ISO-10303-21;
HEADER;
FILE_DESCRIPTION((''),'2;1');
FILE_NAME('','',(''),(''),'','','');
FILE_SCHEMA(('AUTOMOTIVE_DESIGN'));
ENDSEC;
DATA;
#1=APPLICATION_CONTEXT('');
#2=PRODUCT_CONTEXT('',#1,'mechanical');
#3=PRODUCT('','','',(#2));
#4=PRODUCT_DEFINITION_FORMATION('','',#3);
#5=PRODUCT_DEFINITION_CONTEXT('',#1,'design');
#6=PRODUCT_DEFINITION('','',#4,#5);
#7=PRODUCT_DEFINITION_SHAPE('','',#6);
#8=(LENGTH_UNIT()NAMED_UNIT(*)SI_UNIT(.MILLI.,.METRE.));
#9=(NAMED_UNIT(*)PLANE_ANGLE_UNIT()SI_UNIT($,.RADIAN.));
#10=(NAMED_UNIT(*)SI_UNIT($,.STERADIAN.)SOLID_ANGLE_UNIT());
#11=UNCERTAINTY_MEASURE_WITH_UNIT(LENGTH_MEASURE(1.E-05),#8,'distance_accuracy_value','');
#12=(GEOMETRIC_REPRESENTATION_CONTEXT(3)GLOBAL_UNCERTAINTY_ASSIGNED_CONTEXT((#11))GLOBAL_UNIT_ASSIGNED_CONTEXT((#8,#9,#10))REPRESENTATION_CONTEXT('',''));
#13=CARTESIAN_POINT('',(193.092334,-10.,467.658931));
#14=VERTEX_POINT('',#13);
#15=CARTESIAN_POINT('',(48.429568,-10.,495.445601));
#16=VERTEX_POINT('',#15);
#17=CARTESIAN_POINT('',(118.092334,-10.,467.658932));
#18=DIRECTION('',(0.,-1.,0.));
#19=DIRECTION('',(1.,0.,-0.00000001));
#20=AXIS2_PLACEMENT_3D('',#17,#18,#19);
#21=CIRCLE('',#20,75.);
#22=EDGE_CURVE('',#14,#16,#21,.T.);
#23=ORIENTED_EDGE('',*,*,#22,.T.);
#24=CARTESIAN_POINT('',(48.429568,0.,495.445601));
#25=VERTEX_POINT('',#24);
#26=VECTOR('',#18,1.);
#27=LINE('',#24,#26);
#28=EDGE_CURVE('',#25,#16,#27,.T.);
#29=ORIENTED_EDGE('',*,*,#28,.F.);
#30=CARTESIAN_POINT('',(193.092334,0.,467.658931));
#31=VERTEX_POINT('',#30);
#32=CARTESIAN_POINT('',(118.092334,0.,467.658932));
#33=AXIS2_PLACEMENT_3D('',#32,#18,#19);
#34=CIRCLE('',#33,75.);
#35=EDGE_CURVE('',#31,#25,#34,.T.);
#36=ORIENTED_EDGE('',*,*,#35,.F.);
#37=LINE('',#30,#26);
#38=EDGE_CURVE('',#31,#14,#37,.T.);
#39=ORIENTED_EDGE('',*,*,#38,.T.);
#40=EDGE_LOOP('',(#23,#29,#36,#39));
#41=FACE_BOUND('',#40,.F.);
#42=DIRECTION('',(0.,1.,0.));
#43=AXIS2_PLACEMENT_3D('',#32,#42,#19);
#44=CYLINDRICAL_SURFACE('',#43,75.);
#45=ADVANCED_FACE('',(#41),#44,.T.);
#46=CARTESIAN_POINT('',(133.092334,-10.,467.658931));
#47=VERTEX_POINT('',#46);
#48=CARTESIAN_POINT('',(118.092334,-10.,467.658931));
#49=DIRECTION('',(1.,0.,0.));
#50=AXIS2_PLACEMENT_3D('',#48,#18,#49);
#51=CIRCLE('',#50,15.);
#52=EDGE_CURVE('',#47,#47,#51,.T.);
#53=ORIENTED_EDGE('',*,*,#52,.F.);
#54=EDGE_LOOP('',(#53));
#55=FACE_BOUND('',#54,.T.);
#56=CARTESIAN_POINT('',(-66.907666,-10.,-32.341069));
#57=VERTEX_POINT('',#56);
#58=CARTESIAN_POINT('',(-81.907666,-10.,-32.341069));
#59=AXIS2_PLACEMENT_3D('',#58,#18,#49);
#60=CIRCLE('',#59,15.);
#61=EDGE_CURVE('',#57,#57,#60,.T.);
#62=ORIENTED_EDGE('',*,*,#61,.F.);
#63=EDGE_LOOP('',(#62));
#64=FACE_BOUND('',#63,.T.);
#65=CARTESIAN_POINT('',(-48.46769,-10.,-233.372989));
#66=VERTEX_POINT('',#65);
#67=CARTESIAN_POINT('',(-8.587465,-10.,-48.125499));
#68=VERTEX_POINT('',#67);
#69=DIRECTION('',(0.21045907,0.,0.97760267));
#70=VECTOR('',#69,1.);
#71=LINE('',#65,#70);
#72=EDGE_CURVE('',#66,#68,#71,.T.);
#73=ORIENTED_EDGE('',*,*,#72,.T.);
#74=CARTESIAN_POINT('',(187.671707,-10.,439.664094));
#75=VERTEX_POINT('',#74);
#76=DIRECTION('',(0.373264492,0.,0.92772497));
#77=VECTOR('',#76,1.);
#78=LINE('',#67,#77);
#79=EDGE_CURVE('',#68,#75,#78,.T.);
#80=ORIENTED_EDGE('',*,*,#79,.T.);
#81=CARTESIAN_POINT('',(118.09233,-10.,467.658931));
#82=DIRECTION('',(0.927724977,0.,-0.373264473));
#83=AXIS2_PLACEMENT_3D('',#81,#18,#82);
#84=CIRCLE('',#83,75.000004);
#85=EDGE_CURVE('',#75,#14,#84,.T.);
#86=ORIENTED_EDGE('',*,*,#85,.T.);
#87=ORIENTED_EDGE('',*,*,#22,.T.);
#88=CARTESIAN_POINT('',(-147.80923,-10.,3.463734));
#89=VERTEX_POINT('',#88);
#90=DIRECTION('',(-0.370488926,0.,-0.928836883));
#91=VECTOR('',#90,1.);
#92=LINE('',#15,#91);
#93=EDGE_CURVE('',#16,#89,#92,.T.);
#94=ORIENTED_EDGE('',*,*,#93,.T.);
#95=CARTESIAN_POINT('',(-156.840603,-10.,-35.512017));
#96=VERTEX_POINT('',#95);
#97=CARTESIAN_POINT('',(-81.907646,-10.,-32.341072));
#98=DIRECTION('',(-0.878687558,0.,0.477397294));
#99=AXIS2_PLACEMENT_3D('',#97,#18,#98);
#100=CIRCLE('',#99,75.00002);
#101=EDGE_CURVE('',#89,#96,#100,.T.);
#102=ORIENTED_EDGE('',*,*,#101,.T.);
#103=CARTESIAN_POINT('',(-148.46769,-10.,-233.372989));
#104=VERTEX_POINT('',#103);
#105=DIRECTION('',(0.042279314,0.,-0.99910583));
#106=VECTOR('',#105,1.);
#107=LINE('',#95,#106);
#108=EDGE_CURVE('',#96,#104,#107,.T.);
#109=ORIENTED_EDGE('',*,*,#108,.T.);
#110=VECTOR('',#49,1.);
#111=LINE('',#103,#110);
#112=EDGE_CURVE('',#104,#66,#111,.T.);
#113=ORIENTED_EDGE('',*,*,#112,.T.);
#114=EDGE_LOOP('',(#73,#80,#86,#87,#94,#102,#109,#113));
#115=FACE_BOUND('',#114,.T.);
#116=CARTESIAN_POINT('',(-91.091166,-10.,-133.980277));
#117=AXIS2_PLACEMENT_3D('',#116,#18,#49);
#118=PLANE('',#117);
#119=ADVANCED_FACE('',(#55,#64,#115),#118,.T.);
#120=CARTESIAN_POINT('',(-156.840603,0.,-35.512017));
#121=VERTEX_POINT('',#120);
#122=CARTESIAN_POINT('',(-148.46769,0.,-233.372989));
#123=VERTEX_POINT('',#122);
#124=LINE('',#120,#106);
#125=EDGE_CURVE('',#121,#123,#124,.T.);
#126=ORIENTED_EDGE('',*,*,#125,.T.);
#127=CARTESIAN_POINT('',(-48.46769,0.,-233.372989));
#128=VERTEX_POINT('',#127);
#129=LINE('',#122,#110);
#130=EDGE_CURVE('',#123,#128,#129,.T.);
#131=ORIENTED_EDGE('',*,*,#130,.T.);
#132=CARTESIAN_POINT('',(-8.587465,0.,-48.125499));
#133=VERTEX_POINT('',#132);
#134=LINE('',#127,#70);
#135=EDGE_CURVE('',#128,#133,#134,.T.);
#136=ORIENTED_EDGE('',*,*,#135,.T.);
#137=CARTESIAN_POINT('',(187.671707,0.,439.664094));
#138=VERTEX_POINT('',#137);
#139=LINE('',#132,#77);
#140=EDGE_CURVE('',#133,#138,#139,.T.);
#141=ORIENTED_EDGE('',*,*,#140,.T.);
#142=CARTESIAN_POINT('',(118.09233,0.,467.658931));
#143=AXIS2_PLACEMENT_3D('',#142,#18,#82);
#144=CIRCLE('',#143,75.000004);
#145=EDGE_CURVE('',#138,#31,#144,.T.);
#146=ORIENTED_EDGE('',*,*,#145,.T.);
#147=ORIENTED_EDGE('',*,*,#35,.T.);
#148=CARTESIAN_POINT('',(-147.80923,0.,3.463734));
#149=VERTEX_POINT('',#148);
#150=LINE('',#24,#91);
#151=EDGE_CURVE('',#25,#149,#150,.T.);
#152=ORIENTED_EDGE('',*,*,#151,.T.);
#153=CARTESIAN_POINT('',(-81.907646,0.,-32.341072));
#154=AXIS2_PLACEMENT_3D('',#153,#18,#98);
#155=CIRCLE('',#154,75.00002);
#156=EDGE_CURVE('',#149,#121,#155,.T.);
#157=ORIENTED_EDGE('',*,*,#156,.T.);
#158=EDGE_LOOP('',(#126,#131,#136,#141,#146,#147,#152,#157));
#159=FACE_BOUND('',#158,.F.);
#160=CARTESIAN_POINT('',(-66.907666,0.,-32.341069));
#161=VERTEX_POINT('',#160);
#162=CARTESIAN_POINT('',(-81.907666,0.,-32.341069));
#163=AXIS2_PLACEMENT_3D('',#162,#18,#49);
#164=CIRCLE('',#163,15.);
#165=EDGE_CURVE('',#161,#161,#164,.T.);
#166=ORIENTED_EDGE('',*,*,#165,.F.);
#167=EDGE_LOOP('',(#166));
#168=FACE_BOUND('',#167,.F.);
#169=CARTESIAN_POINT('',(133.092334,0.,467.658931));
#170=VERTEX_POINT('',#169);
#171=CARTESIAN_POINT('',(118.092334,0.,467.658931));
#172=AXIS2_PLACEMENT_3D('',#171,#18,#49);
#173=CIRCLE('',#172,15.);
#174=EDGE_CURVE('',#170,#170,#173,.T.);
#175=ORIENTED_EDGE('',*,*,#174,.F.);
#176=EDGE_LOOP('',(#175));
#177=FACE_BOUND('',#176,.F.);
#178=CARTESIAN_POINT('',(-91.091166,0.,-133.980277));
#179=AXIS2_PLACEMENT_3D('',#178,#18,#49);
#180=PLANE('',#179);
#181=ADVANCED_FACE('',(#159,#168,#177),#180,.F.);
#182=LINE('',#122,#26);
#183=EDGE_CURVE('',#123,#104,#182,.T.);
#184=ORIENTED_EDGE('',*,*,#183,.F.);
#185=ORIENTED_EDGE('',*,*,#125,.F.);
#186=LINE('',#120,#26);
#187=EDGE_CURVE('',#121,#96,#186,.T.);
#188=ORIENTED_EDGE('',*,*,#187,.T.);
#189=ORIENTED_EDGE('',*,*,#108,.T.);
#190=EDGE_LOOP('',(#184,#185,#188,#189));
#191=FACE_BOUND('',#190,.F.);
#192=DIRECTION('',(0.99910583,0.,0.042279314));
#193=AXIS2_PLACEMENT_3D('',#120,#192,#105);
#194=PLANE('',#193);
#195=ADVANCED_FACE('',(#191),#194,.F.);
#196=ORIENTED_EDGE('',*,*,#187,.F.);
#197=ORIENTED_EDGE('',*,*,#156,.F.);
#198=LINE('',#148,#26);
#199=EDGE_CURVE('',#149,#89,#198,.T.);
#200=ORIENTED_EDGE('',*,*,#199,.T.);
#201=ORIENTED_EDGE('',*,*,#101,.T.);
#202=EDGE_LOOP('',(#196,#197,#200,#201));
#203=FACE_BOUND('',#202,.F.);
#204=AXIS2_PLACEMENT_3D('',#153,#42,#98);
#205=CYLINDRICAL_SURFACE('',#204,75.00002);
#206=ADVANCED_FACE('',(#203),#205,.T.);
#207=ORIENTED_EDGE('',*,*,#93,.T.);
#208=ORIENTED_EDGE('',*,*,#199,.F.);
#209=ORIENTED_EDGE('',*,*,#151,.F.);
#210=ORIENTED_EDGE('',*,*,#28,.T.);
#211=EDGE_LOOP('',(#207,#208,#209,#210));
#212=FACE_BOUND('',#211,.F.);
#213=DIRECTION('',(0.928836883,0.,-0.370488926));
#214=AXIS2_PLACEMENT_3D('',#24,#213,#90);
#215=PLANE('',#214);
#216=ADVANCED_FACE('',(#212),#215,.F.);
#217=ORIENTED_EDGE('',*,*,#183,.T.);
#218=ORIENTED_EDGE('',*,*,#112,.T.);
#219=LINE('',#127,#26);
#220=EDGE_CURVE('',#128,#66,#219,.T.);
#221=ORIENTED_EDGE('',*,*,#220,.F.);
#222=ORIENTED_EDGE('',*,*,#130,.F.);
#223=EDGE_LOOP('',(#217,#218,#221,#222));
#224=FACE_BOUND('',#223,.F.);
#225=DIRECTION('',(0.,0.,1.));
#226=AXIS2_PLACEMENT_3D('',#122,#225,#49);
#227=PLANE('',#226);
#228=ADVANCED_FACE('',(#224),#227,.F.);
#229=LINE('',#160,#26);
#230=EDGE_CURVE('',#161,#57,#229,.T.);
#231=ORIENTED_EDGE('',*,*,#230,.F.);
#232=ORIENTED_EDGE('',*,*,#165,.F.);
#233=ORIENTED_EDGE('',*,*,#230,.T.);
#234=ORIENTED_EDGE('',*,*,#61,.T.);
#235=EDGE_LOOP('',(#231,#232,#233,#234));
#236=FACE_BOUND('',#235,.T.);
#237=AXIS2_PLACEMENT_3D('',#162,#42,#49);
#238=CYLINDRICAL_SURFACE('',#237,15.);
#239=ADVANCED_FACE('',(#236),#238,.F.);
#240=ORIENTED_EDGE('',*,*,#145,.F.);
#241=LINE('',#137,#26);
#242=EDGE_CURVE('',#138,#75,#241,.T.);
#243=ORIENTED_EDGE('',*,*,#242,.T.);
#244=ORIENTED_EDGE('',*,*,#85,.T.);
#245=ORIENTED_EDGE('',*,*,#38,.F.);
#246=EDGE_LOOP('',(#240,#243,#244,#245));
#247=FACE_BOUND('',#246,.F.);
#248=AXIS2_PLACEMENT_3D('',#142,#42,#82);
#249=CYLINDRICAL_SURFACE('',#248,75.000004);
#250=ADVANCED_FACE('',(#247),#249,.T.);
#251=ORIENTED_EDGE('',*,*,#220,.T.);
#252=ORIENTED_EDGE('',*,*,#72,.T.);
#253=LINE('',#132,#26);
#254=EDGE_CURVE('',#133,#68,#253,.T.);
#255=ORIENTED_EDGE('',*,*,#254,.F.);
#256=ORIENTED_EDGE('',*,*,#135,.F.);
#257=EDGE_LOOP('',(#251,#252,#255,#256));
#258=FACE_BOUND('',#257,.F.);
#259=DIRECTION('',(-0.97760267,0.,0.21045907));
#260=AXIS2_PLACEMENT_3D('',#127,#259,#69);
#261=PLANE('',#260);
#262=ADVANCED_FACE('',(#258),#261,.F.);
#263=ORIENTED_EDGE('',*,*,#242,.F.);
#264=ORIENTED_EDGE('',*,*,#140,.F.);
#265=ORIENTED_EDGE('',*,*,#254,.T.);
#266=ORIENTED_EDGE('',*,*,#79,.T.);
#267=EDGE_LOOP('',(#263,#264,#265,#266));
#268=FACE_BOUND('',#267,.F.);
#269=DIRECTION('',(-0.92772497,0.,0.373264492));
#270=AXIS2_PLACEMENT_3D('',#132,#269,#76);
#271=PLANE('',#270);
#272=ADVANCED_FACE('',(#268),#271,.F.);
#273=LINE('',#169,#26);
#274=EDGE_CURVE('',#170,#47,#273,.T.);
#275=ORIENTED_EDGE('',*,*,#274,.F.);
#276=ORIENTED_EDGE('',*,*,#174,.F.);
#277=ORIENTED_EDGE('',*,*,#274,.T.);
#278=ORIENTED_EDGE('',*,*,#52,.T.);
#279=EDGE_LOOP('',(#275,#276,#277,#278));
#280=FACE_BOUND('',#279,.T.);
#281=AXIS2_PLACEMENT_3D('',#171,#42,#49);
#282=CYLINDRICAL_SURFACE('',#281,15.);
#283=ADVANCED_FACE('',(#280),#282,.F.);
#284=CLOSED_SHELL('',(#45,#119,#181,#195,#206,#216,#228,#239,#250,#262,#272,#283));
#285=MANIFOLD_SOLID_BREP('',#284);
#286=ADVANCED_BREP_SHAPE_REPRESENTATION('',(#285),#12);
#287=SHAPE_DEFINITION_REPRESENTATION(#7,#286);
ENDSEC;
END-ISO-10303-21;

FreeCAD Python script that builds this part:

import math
import FreeCAD as App
import Part
import Sketcher
from FreeCAD import Vector

doc = App.newDocument("Part")
body = doc.addObject("PartDesign::Body", "Body")

# Sketch on XZ plane
sketch1 = doc.addObject("Sketcher::SketchObject", "Sketch")
body.addObject(sketch1)
sketch1.AttachmentSupport = (doc.XZ_Plane, [""])
sketch1.MapMode = "FlatFace"
sketch1.addGeometry(Part.LineSegment(Vector(-156.840603, -35.512017, 0), Vector(-148.46769, -233.372989, 0)), False)
sketch1.addGeometry(Part.LineSegment(Vector(-148.46769, -233.372989, 0), Vector(-48.46769, -233.372989, 0)), False)
sketch1.addGeometry(Part.LineSegment(Vector(-48.46769, -233.372989, 0), Vector(-8.587465, -48.125499, 0)), False)
sketch1.addGeometry(Part.LineSegment(Vector(-8.587465, -48.125499, 0), Vector(187.671707, 439.664094, 0)), False)
sketch1.addGeometry(Part.ArcOfCircle(Part.Circle(Vector(118.09233, 467.658931, 0), Vector(0, 0, 1), 75.000004), math.radians(-21.917087), math.radians(0)), False)
sketch1.addGeometry(Part.ArcOfCircle(Part.Circle(Vector(118.092334, 467.658932, 0), Vector(0, 0, 1), 75), math.radians(-0.000001), math.radians(158.254226)), False)
sketch1.addGeometry(Part.LineSegment(Vector(48.429568, 495.445601, 0), Vector(-147.80923, 3.463734, 0)), False)
sketch1.addGeometry(Part.ArcOfCircle(Part.Circle(Vector(-81.907646, -32.341072, 0), Vector(0, 0, 1), 75.00002), math.radians(151.484447), math.radians(182.423145)), False)
sketch1.addGeometry(Part.Circle(Vector(-81.907666, -32.341069, 0), Vector(0, 0, 1), 15), False)
sketch1.addGeometry(Part.Circle(Vector(118.092334, 467.658931, 0), Vector(0, 0, 1), 15), False)
sketch1.addConstraint(Sketcher.Constraint("Coincident", 0, 2, 1, 1))
sketch1.addConstraint(Sketcher.Constraint("Coincident", 1, 2, 2, 1))
sketch1.addConstraint(Sketcher.Constraint("Coincident", 2, 2, 3, 1))
sketch1.addConstraint(Sketcher.Constraint("Coincident", 3, 2, 4, 1))
sketch1.addConstraint(Sketcher.Constraint("Coincident", 4, 2, 5, 1))
sketch1.addConstraint(Sketcher.Constraint("Coincident", 5, 2, 6, 1))
sketch1.addConstraint(Sketcher.Constraint("Coincident", 6, 2, 7, 1))
sketch1.addConstraint(Sketcher.Constraint("Coincident", 7, 2, 0, 1))
sketch1.addConstraint(Sketcher.Constraint("Horizontal", 1))
sketch1.addConstraint(Sketcher.Constraint("Coincident", 5, 3, 4, 3))
sketch1.addConstraint(Sketcher.Constraint("Coincident", 9, 3, 4, 3))
sketch1.addConstraint(Sketcher.Constraint("Diameter", 8, 30.0))
sketch1.addConstraint(Sketcher.Constraint("Diameter", 9, 30.0))
sketch1.addConstraint(Sketcher.Constraint("Radius", 5, 75.0))
sketch1.addConstraint(Sketcher.Constraint("DistanceX", 1, 1, 1, 2, 100.0))
sketch1.addConstraint(Sketcher.Constraint("DistanceY", 8, 3, 4, 3, 500.0))
sketch1.addConstraint(Sketcher.Constraint("DistanceX", 8, 3, 5, 3, 200.0))
sketch1.addConstraint(Sketcher.Constraint("Radius", 7, 75.00002))
sketch1.addConstraint(Sketcher.Constraint("DistanceY", 2, 2, -1, 1, 48.125499))
sketch1.addConstraint(Sketcher.Constraint("DistanceY", -1, 1, 5, 2, 495.445601))
sketch1.addConstraint(Sketcher.Constraint("DistanceX", 8, 3, 2, 2, 73.320201))
sketch1.addConstraint(Sketcher.Constraint("Distance", 0, 198.038052))
sketch1.addConstraint(Sketcher.Constraint("DistanceX", -1, 1, 4, 3, 118.09233))
sketch1.addConstraint(Sketcher.Constraint("DistanceY", -1, 1, 4, 3, 467.658931))
sketch1.addConstraint(Sketcher.Constraint("DistanceX", 0, 2, -1, 1, 148.46769))
sketch1.addConstraint(Sketcher.Constraint("DistanceY", 0, 2, -1, 1, 233.372989))
sketch1.addConstraint(Sketcher.Constraint("DistanceY", -1, 1, 4, 2, 467.658931))
sketch1.addConstraint(Sketcher.Constraint("DistanceX", 6, 2, -1, 1, 147.80923))
sketch1.addConstraint(Sketcher.Constraint("DistanceX", 7, 3, 5, 3, 199.99998))
sketch1.addConstraint(Sketcher.Constraint("DistanceX", 2, 2, 3, 2, 196.259172))
sketch1.addConstraint(Sketcher.Constraint("DistanceY", 7, 2, 6, 2, 38.975751))
pad1 = doc.addObject("PartDesign::Pad", "Pad")
body.addObject(pad1)
pad1.Profile = sketch1
pad1.Length = 10

doc.recompute()
